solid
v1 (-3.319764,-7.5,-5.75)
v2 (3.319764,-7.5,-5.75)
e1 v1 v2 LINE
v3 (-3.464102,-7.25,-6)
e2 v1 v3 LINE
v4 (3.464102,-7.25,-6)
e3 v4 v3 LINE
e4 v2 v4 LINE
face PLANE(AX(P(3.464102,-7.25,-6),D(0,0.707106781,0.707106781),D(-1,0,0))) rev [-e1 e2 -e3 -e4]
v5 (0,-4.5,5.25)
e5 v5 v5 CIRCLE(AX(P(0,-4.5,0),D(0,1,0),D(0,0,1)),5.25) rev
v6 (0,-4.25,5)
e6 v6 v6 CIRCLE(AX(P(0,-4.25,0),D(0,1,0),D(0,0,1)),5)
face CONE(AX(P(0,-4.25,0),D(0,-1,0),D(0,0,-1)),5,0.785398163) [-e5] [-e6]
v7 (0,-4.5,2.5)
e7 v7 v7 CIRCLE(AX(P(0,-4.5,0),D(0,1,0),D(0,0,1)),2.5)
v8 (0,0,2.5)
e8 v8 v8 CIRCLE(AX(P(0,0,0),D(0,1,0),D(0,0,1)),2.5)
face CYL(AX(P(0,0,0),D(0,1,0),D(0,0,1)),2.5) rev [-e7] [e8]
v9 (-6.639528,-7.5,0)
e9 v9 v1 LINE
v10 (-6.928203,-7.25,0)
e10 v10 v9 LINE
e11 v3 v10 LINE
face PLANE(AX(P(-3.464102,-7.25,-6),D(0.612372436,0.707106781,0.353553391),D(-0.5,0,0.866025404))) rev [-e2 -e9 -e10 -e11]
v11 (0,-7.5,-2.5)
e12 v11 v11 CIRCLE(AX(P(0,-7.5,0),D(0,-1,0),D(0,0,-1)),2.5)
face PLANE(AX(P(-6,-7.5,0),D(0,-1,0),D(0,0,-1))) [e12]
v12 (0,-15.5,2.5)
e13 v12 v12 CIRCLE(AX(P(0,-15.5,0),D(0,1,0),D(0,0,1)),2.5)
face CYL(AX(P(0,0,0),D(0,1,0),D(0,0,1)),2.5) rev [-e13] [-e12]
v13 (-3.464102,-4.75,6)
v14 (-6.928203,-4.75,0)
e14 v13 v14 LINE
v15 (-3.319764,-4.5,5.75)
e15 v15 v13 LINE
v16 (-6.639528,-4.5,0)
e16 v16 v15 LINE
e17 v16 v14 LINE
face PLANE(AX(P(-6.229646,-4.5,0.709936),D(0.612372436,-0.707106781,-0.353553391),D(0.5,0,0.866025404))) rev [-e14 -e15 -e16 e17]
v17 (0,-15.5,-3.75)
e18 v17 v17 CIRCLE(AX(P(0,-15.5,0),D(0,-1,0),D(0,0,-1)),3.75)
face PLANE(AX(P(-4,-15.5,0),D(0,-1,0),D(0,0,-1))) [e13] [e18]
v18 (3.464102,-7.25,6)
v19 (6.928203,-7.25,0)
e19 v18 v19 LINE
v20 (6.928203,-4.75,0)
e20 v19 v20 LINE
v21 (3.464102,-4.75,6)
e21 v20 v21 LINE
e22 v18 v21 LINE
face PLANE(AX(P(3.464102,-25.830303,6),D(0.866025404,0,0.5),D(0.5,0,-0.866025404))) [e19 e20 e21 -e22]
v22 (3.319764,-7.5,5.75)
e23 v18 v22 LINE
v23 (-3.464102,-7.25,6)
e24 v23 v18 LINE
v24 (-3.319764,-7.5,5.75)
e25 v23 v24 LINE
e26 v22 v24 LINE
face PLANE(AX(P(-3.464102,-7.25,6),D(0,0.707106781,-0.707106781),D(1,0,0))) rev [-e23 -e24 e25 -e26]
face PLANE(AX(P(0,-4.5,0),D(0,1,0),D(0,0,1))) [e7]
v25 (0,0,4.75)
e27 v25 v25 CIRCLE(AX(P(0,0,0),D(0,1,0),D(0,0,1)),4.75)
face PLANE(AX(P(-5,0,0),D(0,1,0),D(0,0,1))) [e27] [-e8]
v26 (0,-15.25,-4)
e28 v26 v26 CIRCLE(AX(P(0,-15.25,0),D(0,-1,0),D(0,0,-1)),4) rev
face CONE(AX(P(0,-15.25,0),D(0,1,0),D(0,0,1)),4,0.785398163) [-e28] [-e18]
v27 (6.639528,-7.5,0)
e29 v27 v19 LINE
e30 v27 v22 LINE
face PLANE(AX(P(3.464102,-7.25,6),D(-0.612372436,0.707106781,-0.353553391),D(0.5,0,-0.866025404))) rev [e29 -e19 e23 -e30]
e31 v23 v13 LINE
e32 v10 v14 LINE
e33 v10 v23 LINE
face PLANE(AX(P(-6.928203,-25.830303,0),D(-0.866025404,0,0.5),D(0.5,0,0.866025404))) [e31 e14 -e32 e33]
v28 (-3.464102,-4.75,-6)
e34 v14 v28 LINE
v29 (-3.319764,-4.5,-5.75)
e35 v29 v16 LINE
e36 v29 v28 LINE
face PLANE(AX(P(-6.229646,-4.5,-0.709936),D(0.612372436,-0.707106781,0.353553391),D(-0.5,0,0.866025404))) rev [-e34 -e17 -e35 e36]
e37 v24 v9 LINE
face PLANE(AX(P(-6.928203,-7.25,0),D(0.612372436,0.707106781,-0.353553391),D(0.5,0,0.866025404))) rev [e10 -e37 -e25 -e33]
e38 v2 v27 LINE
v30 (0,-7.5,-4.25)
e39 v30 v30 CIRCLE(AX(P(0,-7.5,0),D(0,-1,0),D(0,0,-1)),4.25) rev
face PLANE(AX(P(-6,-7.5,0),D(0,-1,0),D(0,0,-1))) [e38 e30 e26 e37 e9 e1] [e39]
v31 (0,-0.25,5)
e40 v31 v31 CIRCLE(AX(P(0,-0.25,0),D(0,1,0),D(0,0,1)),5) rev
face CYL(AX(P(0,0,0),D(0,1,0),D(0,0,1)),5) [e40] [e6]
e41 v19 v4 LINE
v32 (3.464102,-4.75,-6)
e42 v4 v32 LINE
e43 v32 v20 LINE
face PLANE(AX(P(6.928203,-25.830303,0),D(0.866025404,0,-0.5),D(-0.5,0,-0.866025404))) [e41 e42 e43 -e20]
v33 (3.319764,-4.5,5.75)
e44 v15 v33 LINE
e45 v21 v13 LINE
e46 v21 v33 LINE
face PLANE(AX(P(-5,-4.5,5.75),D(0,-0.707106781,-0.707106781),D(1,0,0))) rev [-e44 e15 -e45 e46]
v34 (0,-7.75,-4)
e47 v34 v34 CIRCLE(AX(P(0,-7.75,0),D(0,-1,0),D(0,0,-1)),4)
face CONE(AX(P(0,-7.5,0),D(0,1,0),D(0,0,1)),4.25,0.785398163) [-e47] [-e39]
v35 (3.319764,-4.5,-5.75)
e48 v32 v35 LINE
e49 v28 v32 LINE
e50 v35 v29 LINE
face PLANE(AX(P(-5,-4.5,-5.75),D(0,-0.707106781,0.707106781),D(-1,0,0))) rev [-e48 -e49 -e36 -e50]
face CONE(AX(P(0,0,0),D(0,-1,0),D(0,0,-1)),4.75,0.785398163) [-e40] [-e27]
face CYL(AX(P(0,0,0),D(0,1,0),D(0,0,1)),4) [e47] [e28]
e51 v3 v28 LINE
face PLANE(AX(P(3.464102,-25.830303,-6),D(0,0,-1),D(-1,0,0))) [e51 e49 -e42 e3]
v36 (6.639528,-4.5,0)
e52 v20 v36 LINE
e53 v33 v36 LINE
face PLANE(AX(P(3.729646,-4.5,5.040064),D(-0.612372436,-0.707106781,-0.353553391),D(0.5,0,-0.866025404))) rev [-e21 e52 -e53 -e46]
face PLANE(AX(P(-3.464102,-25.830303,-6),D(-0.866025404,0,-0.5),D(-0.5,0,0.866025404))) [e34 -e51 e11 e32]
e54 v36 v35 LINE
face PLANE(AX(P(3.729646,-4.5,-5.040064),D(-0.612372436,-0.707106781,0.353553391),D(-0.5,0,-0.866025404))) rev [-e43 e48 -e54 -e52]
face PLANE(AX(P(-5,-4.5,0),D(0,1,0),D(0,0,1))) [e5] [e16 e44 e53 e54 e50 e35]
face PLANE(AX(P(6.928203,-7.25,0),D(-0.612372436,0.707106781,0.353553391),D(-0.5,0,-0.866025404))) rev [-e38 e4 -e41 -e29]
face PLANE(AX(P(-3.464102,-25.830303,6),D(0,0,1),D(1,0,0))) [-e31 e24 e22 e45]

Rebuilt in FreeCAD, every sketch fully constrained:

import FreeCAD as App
import Part
import Sketcher

V = App.Vector
Q = App.Units.Quantity


def edges_at(feature, points):
    """Names of the edges that pass closest to the given points."""
    edges = feature.Shape.Edges
    near = lambda p: min(range(len(edges)), key=lambda i: edges[i].distToShape(Part.Vertex(*p))[0])
    return sorted({f"Edge{near(p) + 1}" for p in points})

doc = App.newDocument("Part")
body = doc.addObject("PartDesign::Body", "Body")

sketch1 = body.newObject("Sketcher::SketchObject", "Sketch")
sketch1.AttachmentSupport = (doc.getObject("XY_Plane"), [""])
sketch1.MapMode = "FlatFace"
sketch1.addGeometry(Part.LineSegment(V(-5, 0, 0), V(-5, -4.5, 0)), False)
sketch1.addGeometry(Part.LineSegment(V(-5, -4.5, 0), V(-6, -4.5, 0)), False)
sketch1.addGeometry(Part.LineSegment(V(-6, -4.5, 0), V(-6, -7.5, 0)), False)
sketch1.addGeometry(Part.LineSegment(V(-6, -7.5, 0), V(-4, -7.5, 0)), False)
sketch1.addGeometry(Part.LineSegment(V(-4, -7.5, 0), V(-4, -15.5, 0)), False)
sketch1.addGeometry(Part.LineSegment(V(-4, -15.5, 0), V(-2.5, -15.5, 0)), False)
sketch1.addGeometry(Part.LineSegment(V(-2.5, -15.5, 0), V(-2.5, 0, 0)), False)
sketch1.addGeometry(Part.LineSegment(V(-2.5, 0, 0), V(-5, 0, 0)), False)
sketch1.addConstraint(Sketcher.Constraint("Coincident", 0, 2, 1, 1))
sketch1.addConstraint(Sketcher.Constraint("Coincident", 1, 2, 2, 1))
sketch1.addConstraint(Sketcher.Constraint("Coincident", 2, 2, 3, 1))
sketch1.addConstraint(Sketcher.Constraint("Coincident", 3, 2, 4, 1))
sketch1.addConstraint(Sketcher.Constraint("Coincident", 4, 2, 5, 1))
sketch1.addConstraint(Sketcher.Constraint("Coincident", 5, 2, 6, 1))
sketch1.addConstraint(Sketcher.Constraint("Coincident", 6, 2, 7, 1))
sketch1.addConstraint(Sketcher.Constraint("Coincident", 7, 2, 0, 1))
sketch1.addConstraint(Sketcher.Constraint("Vertical", 0))
sketch1.addConstraint(Sketcher.Constraint("Horizontal", 1))
sketch1.addConstraint(Sketcher.Constraint("Vertical", 2))
sketch1.addConstraint(Sketcher.Constraint("Horizontal", 3))
sketch1.addConstraint(Sketcher.Constraint("Vertical", 4))
sketch1.addConstraint(Sketcher.Constraint("Horizontal", 5))
sketch1.addConstraint(Sketcher.Constraint("Vertical", 6))
sketch1.addConstraint(Sketcher.Constraint("Horizontal", 7))
sketch1.addConstraint(Sketcher.Constraint("PointOnObject", 6, 2, -1))
sketch1.addConstraint(Sketcher.Constraint("DistanceX", 1, 2, 1, 1, Q("1 mm")))
sketch1.addConstraint(Sketcher.Constraint("DistanceX", 3, 1, 3, 2, Q("2 mm")))
sketch1.addConstraint(Sketcher.Constraint("DistanceY", 2, 2, 2, 1, Q("3 mm")))
sketch1.addConstraint(Sketcher.Constraint("DistanceY", 4, 2, 4, 1, Q("8 mm")))
sketch1.addConstraint(Sketcher.Constraint("DistanceX", 5, 1, 5, 2, Q("1.5 mm")))
sketch1.addConstraint(Sketcher.Constraint("DistanceY", 0, 2, 0, 1, Q("4.5 mm")))
sketch1.addConstraint(Sketcher.Constraint("DistanceX", 0, 2, -1, 1, Q("5 mm")))
revolution = body.newObject("PartDesign::Revolution", "Revolution")
revolution.Profile = sketch1
revolution.ReferenceAxis = (sketch1, ["V_Axis"])
revolution.Angle = 360

sketch2 = body.newObject("Sketcher::SketchObject", "Sketch001")
sketch2.AttachmentSupport = (doc.getObject("XZ_Plane"), [""])
sketch2.MapMode = "FlatFace"
sketch2.AttachmentOffset = App.Placement(V(0, 0, 4.5), App.Rotation())
sketch2.addGeometry(Part.LineSegment(V(-3, -6, 0), V(-7, 0, 0)), False)
sketch2.addGeometry(Part.LineSegment(V(-7, 0, 0), V(-3, 6, 0)), False)
sketch2.addGeometry(Part.LineSegment(V(-3, 6, 0), V(3, 6, 0)), False)
sketch2.addGeometry(Part.LineSegment(V(3, 6, 0), V(7, 0, 0)), False)
sketch2.addGeometry(Part.LineSegment(V(7, 0, 0), V(3, -6, 0)), False)
sketch2.addGeometry(Part.LineSegment(V(3, -6, 0), V(-3, -6, 0)), False)
sketch2.addConstraint(Sketcher.Constraint("Coincident", 0, 2, 1, 1))
sketch2.addConstraint(Sketcher.Constraint("Coincident", 1, 2, 2, 1))
sketch2.addConstraint(Sketcher.Constraint("Coincident", 2, 2, 3, 1))
sketch2.addConstraint(Sketcher.Constraint("Coincident", 3, 2, 4, 1))
sketch2.addConstraint(Sketcher.Constraint("Coincident", 4, 2, 5, 1))
sketch2.addConstraint(Sketcher.Constraint("Coincident", 5, 2, 0, 1))
sketch2.addConstraint(Sketcher.Constraint("Horizontal", 2))
sketch2.addConstraint(Sketcher.Constraint("Horizontal", 5))
sketch2.addConstraint(Sketcher.Constraint("Symmetric", 0, 2, 3, 2, -1, 1))
sketch2.addConstraint(Sketcher.Constraint("Symmetric", 1, 2, 4, 2, -1, 1))
sketch2.addConstraint(Sketcher.Constraint("PointOnObject", 0, 2, -1))
sketch2.addConstraint(Sketcher.Constraint("Parallel", 0, 3))
sketch2.addConstraint(Sketcher.Constraint("Vertical", 2, 2, 4, 2))
sketch2.addConstraint(Sketcher.Constraint("Angle", 0, Q("120 deg")))
sketch2.addConstraint(Sketcher.Constraint("DistanceY", -1, 1, 1, 2, Q("6 mm")))
sketch2.addConstraint(Sketcher.Constraint("DistanceX", 1, 2, -1, 1, Q("3.464102 mm")))
pad1 = body.newObject("PartDesign::Pad", "Pad")
pad1.Profile = sketch2
pad1.Length = 3
doc.recompute()

chamfer = body.newObject("PartDesign::Chamfer", "Chamfer")
chamfer.Base = (pad1, edges_at(pad1, [
    (0, -4.5, 6),
    (-5.196, -4.5, 3),
    (-5.196, -4.5, -3),
    (0, -4.5, -6),
    (5.196, -4.5, -3),
    (5.196, -4.5, 3),
    (-5.196, -7.5, -3),
    (-5.196, -7.5, 3),
    (0, -7.5, 6),
    (5.196, -7.5, 3),
    (5.196, -7.5, -3),
    (0, -7.5, -6),
    (0, -15.5, -4),
    (0, -7.5, -4),
    (0, -4.5, -5),
    (0, 0, -5),
]))
chamfer.Size = 0.25

doc.recompute()
